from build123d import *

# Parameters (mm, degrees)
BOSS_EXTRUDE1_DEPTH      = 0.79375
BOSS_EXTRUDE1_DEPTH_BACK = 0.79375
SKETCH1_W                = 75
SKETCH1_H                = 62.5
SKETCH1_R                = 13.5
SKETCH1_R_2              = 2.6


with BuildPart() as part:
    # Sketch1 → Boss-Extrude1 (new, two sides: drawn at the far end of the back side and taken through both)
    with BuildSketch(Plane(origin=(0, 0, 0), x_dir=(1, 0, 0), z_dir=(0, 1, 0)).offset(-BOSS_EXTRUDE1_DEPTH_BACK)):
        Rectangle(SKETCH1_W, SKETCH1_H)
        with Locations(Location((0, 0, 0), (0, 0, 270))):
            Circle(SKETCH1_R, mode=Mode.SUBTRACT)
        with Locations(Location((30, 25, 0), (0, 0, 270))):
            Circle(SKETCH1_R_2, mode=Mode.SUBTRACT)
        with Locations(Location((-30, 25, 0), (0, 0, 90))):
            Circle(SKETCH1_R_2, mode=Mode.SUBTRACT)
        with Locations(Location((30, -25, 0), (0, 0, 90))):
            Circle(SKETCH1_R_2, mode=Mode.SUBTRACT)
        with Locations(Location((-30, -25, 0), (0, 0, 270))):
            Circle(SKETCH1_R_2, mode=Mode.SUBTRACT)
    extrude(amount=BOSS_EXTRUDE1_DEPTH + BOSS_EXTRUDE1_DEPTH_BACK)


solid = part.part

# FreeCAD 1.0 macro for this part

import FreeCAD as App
import Part
import Sketcher
from FreeCAD import Vector


def add_polygon(sketch, points):
    """Adds a closed chain of lines whose ends are joined by coincident constraints."""
    first, n = sketch.GeometryCount, len(points)
    for a, b in zip(points, points[1:] + points[:1]):
        sketch.addGeometry(Part.LineSegment(App.Vector(*a, 0), App.Vector(*b, 0)), False)
    for i in range(n):
        sketch.addConstraint(Sketcher.Constraint("Coincident", first + i, 2, first + (i + 1) % n, 1))

doc = App.newDocument("Part")
params = doc.addObject("Spreadsheet::Sheet", "Params")
for row, (alias, value) in enumerate([
    ("sketch1_diameter", "27 mm"),
    ("sketch1_diameter2", "5.2 mm"),
    ("sketch1_width", "75 mm"),
    ("sketch1_height", "62.5 mm"),
    ("pad1_length", "0.79375 mm"),
    ("pad1_length2", "0.79375 mm"),
], start=1):
    params.set(f"A{row}", alias)
    params.set(f"B{row}", "=" + value)
    params.setAlias(f"B{row}", alias)

body = doc.addObject("PartDesign::Body", "Body")

sketch1 = body.newObject("Sketcher::SketchObject", "Sketch")
sketch1.AttachmentSupport = (doc.getObject("XZ_Plane"), [""])
sketch1.MapMode = "FlatFace"
add_polygon(sketch1, [(-37.5, -31.2), (-37.5, 31.2), (37.5, 31.2), (37.5, -31.2)])
sketch1.addGeometry(Part.Circle(Vector(-30, 25, 0), Vector(0, 0, 1), 2.6), False)
sketch1.addGeometry(Part.Circle(Vector(30, 25, 0), Vector(0, 0, 1), 2.6), False)
sketch1.addGeometry(Part.Circle(Vector(-30, -25, 0), Vector(0, 0, 1), 2.6), False)
sketch1.addGeometry(Part.Circle(Vector(0, 0, 0), Vector(0, 0, 1), 13.5), False)
sketch1.addGeometry(Part.Circle(Vector(30, -25, 0), Vector(0, 0, 1), 2.6), False)
sketch1.addConstraint([
    Sketcher.Constraint("Vertical", 0),
    Sketcher.Constraint("Horizontal", 1),
    Sketcher.Constraint("Vertical", 2),
    Sketcher.Constraint("Horizontal", 3),
    Sketcher.Constraint("Coincident", 7, 3, -1, 1),
    Sketcher.Constraint("Equal", 4, 5),
    Sketcher.Constraint("Equal", 5, 6),
    Sketcher.Constraint("Equal", 6, 8),
    Sketcher.Constraint("Symmetric", 5, 3, 6, 3, -1, 1),
    Sketcher.Constraint("Symmetric", 4, 3, 8, 3, -1, 1),
    Sketcher.Constraint("Symmetric", 0, 2, 2, 2, -1, 1),
    Sketcher.Constraint("Symmetric", 4, 3, 5, 3, -2),
    Sketcher.Constraint("Diameter", 7, 27.0),
    Sketcher.Constraint("Diameter", 4, 5.2),
    Sketcher.Constraint("DistanceX", 1, 1, 1, 2, 75.0),
    Sketcher.Constraint("DistanceY", 0, 1, 0, 2, 62.5),
    Sketcher.Constraint("DistanceX", 4, 3, -1, 1, 30.0),
    Sketcher.Constraint("DistanceY", -1, 1, 4, 3, 25.0),
])
sketch1.setExpression("Constraints[16]", "Params.sketch1_diameter")
sketch1.setExpression("Constraints[17]", "Params.sketch1_diameter2")
sketch1.setExpression("Constraints[18]", "Params.sketch1_width")
sketch1.setExpression("Constraints[19]", "Params.sketch1_height")
pad1 = body.newObject("PartDesign::Pad", "Pad")
pad1.Profile = sketch1
pad1.Type = "TwoLengths"
pad1.setExpression("Length", "Params.pad1_length")
pad1.setExpression("Length2", "Params.pad1_length2")
pad1.Reversed = True

doc.recompute()
